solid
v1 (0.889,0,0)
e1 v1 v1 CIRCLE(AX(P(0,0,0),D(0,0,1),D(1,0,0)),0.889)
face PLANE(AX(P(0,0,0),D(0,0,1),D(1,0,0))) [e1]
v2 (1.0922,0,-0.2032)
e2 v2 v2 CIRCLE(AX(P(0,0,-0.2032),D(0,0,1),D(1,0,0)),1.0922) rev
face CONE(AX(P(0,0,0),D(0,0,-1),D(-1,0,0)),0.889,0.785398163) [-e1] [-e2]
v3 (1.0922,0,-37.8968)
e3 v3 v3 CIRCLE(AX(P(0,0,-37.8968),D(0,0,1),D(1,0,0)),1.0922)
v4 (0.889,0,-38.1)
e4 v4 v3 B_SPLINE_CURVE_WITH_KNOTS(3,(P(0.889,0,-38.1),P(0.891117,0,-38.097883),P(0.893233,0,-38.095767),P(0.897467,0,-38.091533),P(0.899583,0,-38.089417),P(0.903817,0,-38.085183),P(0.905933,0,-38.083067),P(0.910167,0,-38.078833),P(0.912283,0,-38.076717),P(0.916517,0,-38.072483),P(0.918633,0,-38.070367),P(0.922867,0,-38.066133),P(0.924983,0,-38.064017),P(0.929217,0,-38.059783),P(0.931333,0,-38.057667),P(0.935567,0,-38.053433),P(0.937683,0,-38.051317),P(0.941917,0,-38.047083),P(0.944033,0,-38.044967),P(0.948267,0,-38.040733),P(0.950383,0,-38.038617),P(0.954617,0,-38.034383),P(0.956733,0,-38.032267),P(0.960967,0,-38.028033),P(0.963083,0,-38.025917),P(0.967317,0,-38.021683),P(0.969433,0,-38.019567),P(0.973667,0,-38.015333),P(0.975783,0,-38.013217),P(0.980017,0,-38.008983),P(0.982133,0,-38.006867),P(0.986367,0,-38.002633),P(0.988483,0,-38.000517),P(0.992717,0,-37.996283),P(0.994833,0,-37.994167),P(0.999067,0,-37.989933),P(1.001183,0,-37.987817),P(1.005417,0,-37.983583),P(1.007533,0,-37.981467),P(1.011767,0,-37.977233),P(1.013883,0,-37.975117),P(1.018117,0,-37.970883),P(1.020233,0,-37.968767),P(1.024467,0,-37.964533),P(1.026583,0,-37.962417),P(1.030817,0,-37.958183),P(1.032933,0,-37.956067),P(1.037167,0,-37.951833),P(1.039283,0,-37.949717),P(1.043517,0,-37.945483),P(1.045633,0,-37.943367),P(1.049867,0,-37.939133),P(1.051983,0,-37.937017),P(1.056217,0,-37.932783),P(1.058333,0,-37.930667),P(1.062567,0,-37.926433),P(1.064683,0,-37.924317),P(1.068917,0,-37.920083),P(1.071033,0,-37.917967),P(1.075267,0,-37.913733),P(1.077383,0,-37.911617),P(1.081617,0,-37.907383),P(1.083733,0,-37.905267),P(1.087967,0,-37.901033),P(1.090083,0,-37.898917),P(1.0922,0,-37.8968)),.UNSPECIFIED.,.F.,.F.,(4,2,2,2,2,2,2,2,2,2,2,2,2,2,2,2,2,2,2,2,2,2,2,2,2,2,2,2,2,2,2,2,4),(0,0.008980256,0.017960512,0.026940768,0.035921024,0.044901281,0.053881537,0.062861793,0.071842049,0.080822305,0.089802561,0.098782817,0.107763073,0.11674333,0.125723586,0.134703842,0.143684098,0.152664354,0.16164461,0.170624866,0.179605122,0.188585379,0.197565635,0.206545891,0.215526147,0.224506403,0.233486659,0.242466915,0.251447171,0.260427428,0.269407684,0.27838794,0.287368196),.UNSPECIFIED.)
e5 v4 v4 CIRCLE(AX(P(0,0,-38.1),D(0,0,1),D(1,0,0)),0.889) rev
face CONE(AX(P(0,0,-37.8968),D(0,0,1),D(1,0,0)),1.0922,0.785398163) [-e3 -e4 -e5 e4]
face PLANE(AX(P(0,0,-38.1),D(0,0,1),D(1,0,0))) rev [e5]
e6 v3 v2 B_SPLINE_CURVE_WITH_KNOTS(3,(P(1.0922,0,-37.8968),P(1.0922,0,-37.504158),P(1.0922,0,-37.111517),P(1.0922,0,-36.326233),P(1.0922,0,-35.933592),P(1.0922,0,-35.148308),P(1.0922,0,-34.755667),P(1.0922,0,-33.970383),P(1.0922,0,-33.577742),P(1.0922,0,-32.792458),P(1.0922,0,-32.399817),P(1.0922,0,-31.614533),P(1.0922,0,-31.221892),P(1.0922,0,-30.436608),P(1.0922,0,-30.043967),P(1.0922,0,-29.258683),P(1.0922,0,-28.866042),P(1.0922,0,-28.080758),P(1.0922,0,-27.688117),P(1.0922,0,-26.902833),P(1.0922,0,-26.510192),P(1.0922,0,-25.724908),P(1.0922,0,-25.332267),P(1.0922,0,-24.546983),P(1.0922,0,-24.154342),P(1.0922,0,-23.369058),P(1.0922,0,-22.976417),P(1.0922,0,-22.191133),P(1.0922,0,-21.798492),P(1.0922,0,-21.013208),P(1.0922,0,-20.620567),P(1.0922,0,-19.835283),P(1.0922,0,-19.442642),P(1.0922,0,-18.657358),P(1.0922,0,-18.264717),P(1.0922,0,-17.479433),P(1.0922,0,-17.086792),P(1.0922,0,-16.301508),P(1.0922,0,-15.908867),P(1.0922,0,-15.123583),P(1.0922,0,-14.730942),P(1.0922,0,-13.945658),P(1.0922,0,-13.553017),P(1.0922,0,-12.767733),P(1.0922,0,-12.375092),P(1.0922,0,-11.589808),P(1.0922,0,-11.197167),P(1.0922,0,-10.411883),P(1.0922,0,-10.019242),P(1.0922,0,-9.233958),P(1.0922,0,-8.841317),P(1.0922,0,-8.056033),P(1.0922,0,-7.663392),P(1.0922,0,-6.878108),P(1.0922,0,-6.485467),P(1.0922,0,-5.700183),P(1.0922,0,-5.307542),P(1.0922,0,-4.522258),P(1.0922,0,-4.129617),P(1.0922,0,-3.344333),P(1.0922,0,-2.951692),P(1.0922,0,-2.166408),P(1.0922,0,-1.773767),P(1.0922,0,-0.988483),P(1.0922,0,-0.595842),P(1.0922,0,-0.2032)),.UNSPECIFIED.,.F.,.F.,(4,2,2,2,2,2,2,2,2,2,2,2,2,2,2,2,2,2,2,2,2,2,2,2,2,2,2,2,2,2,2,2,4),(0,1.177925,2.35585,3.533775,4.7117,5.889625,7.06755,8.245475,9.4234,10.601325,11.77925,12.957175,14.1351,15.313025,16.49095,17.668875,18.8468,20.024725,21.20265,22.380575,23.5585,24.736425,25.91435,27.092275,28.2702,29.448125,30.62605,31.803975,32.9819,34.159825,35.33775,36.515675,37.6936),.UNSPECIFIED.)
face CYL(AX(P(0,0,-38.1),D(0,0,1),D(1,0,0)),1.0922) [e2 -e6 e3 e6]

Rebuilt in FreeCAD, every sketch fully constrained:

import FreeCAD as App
import Part
import Sketcher
Q = App.Units.Quantity


def edges_at(feature, points):
    """Names of the edges that pass closest to the given points."""
    edges = feature.Shape.Edges
    near = lambda p: min(range(len(edges)), key=lambda i: edges[i].distToShape(Part.Vertex(*p))[0])
    return sorted({f"Edge{near(p) + 1}" for p in points})

doc = App.newDocument("Part")
params = doc.addObject("Spreadsheet::Sheet", "Params")
for row, (alias, value) in enumerate([
    ("sketch1_diameter", "0.086 in"),
    ("pad1_length", "1.5 in"),
    ("chamfer_size", "0.008 in"),
], start=1):
    params.set(f"A{row}", alias)
    params.set(f"B{row}", "=" + value)
    params.setAlias(f"B{row}", alias)

body = doc.addObject("PartDesign::Body", "Body")

# Sketch on XY plane
sketch1 = doc.addObject("Sketcher::SketchObject", "Sketch")
body.addObject(sketch1)
sketch1.AttachmentSupport = (doc.XY_Plane, [""])
sketch1.MapMode = "FlatFace"
sketch1.addGeometry(Part.Circle(App.Vector(0, 0, 0), App.Vector(0, 0, 1), 1.1), False)
sketch1.addConstraint([
    Sketcher.Constraint("Coincident", 0, 3, -1, 1),
    Sketcher.Constraint("Diameter", 0, Q("0.086 in")),
])
sketch1.setExpression("Constraints[1]", "Params.sketch1_diameter")
pad1 = doc.addObject("PartDesign::Pad", "Pad")
body.addObject(pad1)
pad1.Profile = sketch1
pad1.setExpression("Length", "Params.pad1_length")
pad1.Reversed = True
doc.recompute()

chamfer = doc.addObject("PartDesign::Chamfer", "Chamfer")
body.addObject(chamfer)
chamfer.Base = (pad1, edges_at(pad1, [(-1.092, 0, 0), (-1.092, 0, -38.1)]))
chamfer.setExpression("Size", "Params.chamfer_size")

doc.recompute()
